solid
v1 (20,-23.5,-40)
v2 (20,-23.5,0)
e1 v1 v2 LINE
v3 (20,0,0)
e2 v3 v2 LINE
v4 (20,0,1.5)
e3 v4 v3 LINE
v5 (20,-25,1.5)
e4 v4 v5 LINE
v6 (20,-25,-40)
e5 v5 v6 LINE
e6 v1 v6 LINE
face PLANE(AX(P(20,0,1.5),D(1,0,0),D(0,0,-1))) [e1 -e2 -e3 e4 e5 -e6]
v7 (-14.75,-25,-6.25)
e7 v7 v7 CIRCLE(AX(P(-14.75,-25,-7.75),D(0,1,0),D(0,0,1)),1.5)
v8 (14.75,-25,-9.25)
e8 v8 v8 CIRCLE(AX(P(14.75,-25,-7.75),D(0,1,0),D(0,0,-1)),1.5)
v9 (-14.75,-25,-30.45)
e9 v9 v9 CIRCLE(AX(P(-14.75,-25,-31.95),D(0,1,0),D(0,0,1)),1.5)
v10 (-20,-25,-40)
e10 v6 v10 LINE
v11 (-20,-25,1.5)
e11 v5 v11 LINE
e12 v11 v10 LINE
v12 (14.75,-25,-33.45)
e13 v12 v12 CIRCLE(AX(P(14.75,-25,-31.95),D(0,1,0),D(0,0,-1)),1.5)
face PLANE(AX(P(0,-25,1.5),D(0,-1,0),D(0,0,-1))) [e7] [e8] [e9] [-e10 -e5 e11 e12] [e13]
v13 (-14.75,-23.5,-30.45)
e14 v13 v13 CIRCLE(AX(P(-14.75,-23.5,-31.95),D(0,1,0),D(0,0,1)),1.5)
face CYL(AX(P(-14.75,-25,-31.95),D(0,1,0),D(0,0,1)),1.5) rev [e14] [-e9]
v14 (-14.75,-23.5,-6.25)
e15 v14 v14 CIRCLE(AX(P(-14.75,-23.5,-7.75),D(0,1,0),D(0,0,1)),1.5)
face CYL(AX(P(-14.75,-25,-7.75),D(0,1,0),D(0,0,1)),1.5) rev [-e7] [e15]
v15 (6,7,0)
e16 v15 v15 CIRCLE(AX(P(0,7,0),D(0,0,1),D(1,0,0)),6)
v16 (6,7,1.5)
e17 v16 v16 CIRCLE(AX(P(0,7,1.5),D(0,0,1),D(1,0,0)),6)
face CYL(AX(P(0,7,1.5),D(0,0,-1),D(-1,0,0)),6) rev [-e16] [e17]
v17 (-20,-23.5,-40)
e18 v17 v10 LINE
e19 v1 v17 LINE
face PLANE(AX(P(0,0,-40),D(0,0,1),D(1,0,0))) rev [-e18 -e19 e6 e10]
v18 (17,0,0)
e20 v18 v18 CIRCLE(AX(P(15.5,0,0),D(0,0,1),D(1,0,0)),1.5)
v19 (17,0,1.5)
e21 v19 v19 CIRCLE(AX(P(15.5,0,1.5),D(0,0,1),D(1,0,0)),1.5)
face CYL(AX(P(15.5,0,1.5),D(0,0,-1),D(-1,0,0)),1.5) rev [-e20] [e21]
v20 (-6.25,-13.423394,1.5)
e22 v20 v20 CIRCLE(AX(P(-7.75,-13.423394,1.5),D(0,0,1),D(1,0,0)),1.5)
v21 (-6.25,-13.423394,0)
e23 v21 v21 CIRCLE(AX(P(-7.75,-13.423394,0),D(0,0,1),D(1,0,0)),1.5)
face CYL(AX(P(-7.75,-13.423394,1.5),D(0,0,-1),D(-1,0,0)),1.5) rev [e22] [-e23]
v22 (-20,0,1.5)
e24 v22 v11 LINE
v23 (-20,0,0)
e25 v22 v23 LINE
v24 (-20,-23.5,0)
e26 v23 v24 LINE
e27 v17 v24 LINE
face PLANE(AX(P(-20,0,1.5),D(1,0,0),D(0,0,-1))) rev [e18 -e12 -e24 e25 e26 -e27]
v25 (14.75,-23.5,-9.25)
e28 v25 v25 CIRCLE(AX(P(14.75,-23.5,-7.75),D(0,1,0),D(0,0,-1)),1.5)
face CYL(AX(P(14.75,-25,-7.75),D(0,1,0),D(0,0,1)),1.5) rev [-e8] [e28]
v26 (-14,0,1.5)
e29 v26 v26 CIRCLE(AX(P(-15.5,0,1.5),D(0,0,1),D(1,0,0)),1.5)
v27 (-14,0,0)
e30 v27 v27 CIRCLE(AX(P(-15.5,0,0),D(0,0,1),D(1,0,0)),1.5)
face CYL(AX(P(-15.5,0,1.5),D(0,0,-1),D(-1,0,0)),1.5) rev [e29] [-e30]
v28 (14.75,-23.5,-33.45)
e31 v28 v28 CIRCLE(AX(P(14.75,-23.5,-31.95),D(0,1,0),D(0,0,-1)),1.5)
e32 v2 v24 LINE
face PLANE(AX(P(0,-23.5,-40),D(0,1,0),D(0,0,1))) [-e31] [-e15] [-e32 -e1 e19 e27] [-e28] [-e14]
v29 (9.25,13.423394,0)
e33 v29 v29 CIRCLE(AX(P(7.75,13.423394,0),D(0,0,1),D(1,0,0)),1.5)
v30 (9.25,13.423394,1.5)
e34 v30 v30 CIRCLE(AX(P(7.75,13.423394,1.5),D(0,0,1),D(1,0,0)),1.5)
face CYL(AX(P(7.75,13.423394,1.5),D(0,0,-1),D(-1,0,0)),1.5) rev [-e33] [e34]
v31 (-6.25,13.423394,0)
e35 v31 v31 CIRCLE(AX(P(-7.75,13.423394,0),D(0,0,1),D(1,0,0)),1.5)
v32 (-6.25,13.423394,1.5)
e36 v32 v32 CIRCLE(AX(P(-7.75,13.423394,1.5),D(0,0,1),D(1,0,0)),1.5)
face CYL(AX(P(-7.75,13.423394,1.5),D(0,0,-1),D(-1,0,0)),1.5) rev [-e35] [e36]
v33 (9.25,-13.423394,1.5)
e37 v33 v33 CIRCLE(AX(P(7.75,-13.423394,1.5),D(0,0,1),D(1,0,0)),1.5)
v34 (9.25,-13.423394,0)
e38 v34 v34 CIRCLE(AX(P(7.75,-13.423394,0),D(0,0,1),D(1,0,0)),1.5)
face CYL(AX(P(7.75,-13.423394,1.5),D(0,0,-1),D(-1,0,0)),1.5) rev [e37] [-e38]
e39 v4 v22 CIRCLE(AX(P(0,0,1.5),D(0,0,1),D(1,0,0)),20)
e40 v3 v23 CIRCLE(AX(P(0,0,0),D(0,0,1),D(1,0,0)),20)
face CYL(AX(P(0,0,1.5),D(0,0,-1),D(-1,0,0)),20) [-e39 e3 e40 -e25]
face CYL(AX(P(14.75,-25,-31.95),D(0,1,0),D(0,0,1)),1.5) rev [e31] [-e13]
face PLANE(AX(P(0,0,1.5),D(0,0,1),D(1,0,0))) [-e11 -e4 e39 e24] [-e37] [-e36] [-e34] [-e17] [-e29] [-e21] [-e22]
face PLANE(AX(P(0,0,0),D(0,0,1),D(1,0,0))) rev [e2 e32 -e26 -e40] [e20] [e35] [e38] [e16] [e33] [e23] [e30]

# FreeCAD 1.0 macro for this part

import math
import FreeCAD as App
import Part
import Sketcher

V = App.Vector
Q = App.Units.Quantity

doc = App.newDocument("Part")
body = doc.addObject("PartDesign::Body", "Body")

# Sketch on XY plane
sketch1 = doc.addObject("Sketcher::SketchObject", "Sketch")
body.addObject(sketch1)
sketch1.AttachmentSupport = (doc.XY_Plane, [""])
sketch1.MapMode = "FlatFace"
sketch1.addGeometry(Part.ArcOfCircle(Part.Circle(V(0, 0, 0), V(0, 0, 1), 20), math.radians(0), math.radians(180)), False)
sketch1.addGeometry(Part.LineSegment(V(-20, 0, 0), V(-20, -25, 0)), False)
sketch1.addGeometry(Part.LineSegment(V(-20, -25, 0), V(20, -25, 0)), False)
sketch1.addGeometry(Part.LineSegment(V(20, -25, 0), V(20, 0, 0)), False)
sketch1.addGeometry(Part.Circle(V(7.75, -13.423394, 0), V(0, 0, 1), 1.5), False)
sketch1.addGeometry(Part.Circle(V(-7.75, -13.423394, 0), V(0, 0, 1), 1.5), False)
sketch1.addGeometry(Part.Circle(V(15.5, 0, 0), V(0, 0, 1), 1.5), False)
sketch1.addGeometry(Part.Circle(V(7.75, 13.423394, 0), V(0, 0, 1), 1.5), False)
sketch1.addGeometry(Part.Circle(V(0, 7, 0), V(0, 0, 1), 6), False)
sketch1.addGeometry(Part.Circle(V(-15.5, 0, 0), V(0, 0, 1), 1.5), False)
sketch1.addGeometry(Part.Circle(V(-7.75, 13.423394, 0), V(0, 0, 1), 1.5), False)
sketch1.addConstraint(Sketcher.Constraint("Tangent", 0, 2, 1, 1))
sketch1.addConstraint(Sketcher.Constraint("Coincident", 1, 2, 2, 1))
sketch1.addConstraint(Sketcher.Constraint("Coincident", 2, 2, 3, 1))
sketch1.addConstraint(Sketcher.Constraint("Tangent", 3, 2, 0, 1))
sketch1.addConstraint(Sketcher.Constraint("Vertical", 1))
sketch1.addConstraint(Sketcher.Constraint("Horizontal", 2))
sketch1.addConstraint(Sketcher.Constraint("Vertical", 3))
sketch1.addConstraint(Sketcher.Constraint("Coincident", 0, 3, -1, 1))
sketch1.addConstraint(Sketcher.Constraint("Equal", 4, 5))
sketch1.addConstraint(Sketcher.Constraint("Equal", 5, 6))
sketch1.addConstraint(Sketcher.Constraint("Equal", 6, 7))
sketch1.addConstraint(Sketcher.Constraint("Equal", 7, 9))
sketch1.addConstraint(Sketcher.Constraint("Equal", 9, 10))
sketch1.addConstraint(Sketcher.Constraint("Symmetric", 5, 3, 7, 3, -1, 1))
sketch1.addConstraint(Sketcher.Constraint("Symmetric", 6, 3, 9, 3, -1, 1))
sketch1.addConstraint(Sketcher.Constraint("Symmetric", 4, 3, 10, 3, -1, 1))
sketch1.addConstraint(Sketcher.Constraint("Symmetric", 4, 3, 5, 3, -2))
sketch1.addConstraint(Sketcher.Constraint("PointOnObject", 6, 3, -1))
sketch1.addConstraint(Sketcher.Constraint("PointOnObject", 8, 3, -2))
sketch1.addConstraint(Sketcher.Constraint("Diameter", 4, Q("3 mm")))
sketch1.addConstraint(Sketcher.Constraint("Diameter", 8, Q("12 mm")))
sketch1.addConstraint(Sketcher.Constraint("Radius", 0, Q("20 mm")))
sketch1.addConstraint(Sketcher.Constraint("DistanceY", 1, 2, 1, 1, Q("25 mm")))
sketch1.addConstraint(Sketcher.Constraint("DistanceY", -1, 1, 8, 3, Q("7 mm")))
sketch1.addConstraint(Sketcher.Constraint("DistanceX", -1, 1, 6, 3, Q("15.5 mm")))
sketch1.addConstraint(Sketcher.Constraint("DistanceX", 5, 3, 4, 3, Q("15.5 mm")))
sketch1.addConstraint(Sketcher.Constraint("DistanceY", 4, 3, -1, 1, Q("13.423394 mm")))
pad1 = doc.addObject("PartDesign::Pad", "Pad")
body.addObject(pad1)
pad1.Profile = sketch1
pad1.Length = 1.5

# Sketch on XY plane
sketch2 = doc.addObject("Sketcher::SketchObject", "Sketch001")
body.addObject(sketch2)
sketch2.AttachmentSupport = (doc.XY_Plane, [""])
sketch2.MapMode = "FlatFace"
sketch2.addGeometry(Part.LineSegment(V(-20, -23.5, 0), V(-20, -25, 0)), False)
sketch2.addGeometry(Part.LineSegment(V(-20, -25, 0), V(20, -25, 0)), False)
sketch2.addGeometry(Part.LineSegment(V(20, -25, 0), V(20, -23.5, 0)), False)
sketch2.addGeometry(Part.LineSegment(V(20, -23.5, 0), V(-20, -23.5, 0)), False)
sketch2.addConstraint(Sketcher.Constraint("Coincident", 0, 2, 1, 1))
sketch2.addConstraint(Sketcher.Constraint("Coincident", 1, 2, 2, 1))
sketch2.addConstraint(Sketcher.Constraint("Coincident", 2, 2, 3, 1))
sketch2.addConstraint(Sketcher.Constraint("Coincident", 3, 2, 0, 1))
sketch2.addConstraint(Sketcher.Constraint("Vertical", 0))
sketch2.addConstraint(Sketcher.Constraint("Horizontal", 1))
sketch2.addConstraint(Sketcher.Constraint("Vertical", 2))
sketch2.addConstraint(Sketcher.Constraint("Horizontal", 3))
sketch2.addConstraint(Sketcher.Constraint("DistanceX", 1, 1, 1, 2, Q("40 mm")))
sketch2.addConstraint(Sketcher.Constraint("DistanceY", 0, 2, 0, 1, Q("1.5 mm")))
sketch2.addConstraint(Sketcher.Constraint("DistanceX", 0, 2, -1, 1, Q("20 mm")))
sketch2.addConstraint(Sketcher.Constraint("DistanceY", 0, 2, -1, 1, Q("25 mm")))
pad2 = doc.addObject("PartDesign::Pad", "Pad001")
body.addObject(pad2)
pad2.Profile = sketch2
pad2.Length = 40
pad2.Reversed = True

# Sketch on XZ plane
sketch3 = doc.addObject("Sketcher::SketchObject", "Sketch002")
body.addObject(sketch3)
sketch3.AttachmentSupport = (doc.XZ_Plane, [""])
sketch3.MapMode = "FlatFace"
sketch3.AttachmentOffset = App.Placement(V(0, 0, 23.5), App.Rotation())
sketch3.addGeometry(Part.Circle(V(-14.75, -31.95, 0), V(0, 0, 1), 1.5), False)
sketch3.addGeometry(Part.Circle(V(-14.75, -7.75, 0), V(0, 0, 1), 1.5), False)
sketch3.addGeometry(Part.Circle(V(14.75, -7.75, 0), V(0, 0, 1), 1.5), False)
sketch3.addGeometry(Part.Circle(V(14.75, -31.95, 0), V(0, 0, 1), 1.5), False)
sketch3.addConstraint(Sketcher.Constraint("Equal", 0, 1))
sketch3.addConstraint(Sketcher.Constraint("Equal", 1, 2))
sketch3.addConstraint(Sketcher.Constraint("Equal", 2, 3))
sketch3.addConstraint(Sketcher.Constraint("Symmetric", 1, 3, 2, 3, -2))
sketch3.addConstraint(Sketcher.Constraint("Symmetric", 0, 3, 3, 3, -2))
sketch3.addConstraint(Sketcher.Constraint("Vertical", 0, 3, 1, 3))
sketch3.addConstraint(Sketcher.Constraint("Diameter", 0, Q("3 mm")))
sketch3.addConstraint(Sketcher.Constraint("DistanceY", 0, 3, 1, 3, Q("24.2 mm")))
sketch3.addConstraint(Sketcher.Constraint("DistanceX", 1, 3, 2, 3, Q("29.5 mm")))
sketch3.addConstraint(Sketcher.Constraint("DistanceY", 0, 3, -1, 1, Q("31.95 mm")))
pocket1 = doc.addObject("PartDesign::Pocket", "Pocket")
body.addObject(pocket1)
pocket1.Profile = sketch3
pocket1.Type = "ThroughAll"
pocket1.Reversed = True

doc.recompute()
